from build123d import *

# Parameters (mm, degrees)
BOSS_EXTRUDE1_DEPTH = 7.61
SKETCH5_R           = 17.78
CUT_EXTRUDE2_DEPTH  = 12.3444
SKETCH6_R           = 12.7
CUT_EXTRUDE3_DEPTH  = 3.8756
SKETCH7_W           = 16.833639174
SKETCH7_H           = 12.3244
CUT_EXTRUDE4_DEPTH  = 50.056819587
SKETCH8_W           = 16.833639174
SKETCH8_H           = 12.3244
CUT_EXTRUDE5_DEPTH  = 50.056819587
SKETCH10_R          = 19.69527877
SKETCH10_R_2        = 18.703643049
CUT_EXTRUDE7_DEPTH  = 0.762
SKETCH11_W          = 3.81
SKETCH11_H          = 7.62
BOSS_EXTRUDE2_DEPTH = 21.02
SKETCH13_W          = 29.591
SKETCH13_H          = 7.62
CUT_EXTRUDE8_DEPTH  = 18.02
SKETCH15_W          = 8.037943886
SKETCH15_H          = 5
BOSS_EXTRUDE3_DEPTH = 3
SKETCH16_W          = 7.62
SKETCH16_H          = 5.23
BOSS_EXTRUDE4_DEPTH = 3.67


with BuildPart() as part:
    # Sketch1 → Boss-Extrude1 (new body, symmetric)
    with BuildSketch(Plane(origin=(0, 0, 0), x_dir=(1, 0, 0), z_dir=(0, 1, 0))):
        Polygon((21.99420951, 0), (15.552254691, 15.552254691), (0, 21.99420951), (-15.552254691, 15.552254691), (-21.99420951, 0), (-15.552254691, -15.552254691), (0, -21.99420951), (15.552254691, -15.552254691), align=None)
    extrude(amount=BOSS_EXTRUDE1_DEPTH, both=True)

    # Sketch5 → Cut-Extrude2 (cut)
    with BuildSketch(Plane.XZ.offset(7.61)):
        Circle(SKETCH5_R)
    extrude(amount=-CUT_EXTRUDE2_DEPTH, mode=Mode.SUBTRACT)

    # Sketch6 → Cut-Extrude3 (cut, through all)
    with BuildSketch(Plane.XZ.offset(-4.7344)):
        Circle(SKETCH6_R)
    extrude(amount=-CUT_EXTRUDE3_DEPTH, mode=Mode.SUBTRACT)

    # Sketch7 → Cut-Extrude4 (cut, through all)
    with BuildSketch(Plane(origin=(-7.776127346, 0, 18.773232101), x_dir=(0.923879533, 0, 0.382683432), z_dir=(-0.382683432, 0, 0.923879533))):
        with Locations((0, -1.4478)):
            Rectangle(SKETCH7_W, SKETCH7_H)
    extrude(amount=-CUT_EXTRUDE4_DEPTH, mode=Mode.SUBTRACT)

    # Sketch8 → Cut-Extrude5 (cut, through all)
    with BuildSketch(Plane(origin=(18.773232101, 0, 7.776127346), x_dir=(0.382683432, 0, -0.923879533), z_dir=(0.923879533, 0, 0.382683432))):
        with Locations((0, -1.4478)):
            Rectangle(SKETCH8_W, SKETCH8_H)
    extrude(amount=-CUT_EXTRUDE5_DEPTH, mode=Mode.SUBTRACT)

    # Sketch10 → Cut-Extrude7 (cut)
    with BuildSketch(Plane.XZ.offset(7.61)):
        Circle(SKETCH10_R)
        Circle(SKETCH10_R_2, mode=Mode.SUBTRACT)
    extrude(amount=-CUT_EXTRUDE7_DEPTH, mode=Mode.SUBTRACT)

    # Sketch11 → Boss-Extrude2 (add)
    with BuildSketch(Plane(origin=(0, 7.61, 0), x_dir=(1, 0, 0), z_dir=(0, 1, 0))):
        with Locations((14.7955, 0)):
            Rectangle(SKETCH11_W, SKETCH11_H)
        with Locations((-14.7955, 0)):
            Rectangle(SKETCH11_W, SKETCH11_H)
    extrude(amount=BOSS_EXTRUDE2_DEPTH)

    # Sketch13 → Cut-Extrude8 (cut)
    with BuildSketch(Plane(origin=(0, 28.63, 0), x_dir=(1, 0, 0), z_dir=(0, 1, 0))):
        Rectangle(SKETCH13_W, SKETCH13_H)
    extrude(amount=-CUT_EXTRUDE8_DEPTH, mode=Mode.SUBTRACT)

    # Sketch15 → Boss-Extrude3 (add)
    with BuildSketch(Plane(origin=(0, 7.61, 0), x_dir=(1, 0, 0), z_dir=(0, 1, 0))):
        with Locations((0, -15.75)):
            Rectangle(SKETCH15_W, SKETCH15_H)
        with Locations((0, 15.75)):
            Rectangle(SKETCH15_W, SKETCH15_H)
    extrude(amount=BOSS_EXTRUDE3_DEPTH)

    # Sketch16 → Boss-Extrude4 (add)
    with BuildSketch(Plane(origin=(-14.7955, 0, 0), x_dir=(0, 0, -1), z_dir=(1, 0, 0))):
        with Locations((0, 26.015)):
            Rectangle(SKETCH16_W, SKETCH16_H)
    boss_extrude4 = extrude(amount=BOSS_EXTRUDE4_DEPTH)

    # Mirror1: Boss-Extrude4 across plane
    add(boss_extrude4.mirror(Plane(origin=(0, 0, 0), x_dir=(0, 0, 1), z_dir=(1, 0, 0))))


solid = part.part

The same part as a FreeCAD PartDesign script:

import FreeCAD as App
import Part
import Sketcher
from FreeCAD import Vector
Q = App.Units.Quantity


def add_polygon(sketch, points):
    """Adds a closed chain of lines whose ends are joined by coincident constraints."""
    first, n = sketch.GeometryCount, len(points)
    for a, b in zip(points, points[1:] + points[:1]):
        sketch.addGeometry(Part.LineSegment(App.Vector(*a, 0), App.Vector(*b, 0)), False)
    for i in range(n):
        sketch.addConstraint(Sketcher.Constraint("Coincident", first + i, 2, first + (i + 1) % n, 1))

doc = App.newDocument("Part")
body = doc.addObject("PartDesign::Body", "Body")

sketch1 = body.newObject("Sketcher::SketchObject", "Sketch")
sketch1.AttachmentSupport = (doc.getObject("XZ_Plane"), [""])
sketch1.MapMode = "FlatFace"
add_polygon(sketch1, [(22, 0), (16, -16), (0, -22), (-16, -16), (-22, 0), (-16, 16), (0, 22), (16, 16)])
sketch1.addConstraint(Sketcher.Constraint("Symmetric", 0, 2, 4, 2, -1, 1))
sketch1.addConstraint(Sketcher.Constraint("Symmetric", 1, 2, 5, 2, -1, 1))
sketch1.addConstraint(Sketcher.Constraint("Symmetric", 2, 2, 6, 2, -1, 1))
sketch1.addConstraint(Sketcher.Constraint("Symmetric", 3, 2, 7, 2, -1, 1))
sketch1.addConstraint(Sketcher.Constraint("Symmetric", 0, 2, 2, 2, -2))
sketch1.addConstraint(Sketcher.Constraint("PointOnObject", 1, 2, -2))
sketch1.addConstraint(Sketcher.Constraint("PointOnObject", 3, 2, -1))
sketch1.addConstraint(Sketcher.Constraint("Perpendicular", 0, 2))
sketch1.addConstraint(Sketcher.Constraint("Equal", 0, 1))
sketch1.addConstraint(Sketcher.Constraint("Angle", 0, Q("-112.5 deg")))
sketch1.addConstraint(Sketcher.Constraint("Distance", 0, Q("16.833639 mm")))
pad1 = body.newObject("PartDesign::Pad", "Pad")
pad1.Profile = sketch1
pad1.Length = 15.22
pad1.Midplane = True

sketch2 = body.newObject("Sketcher::SketchObject", "Sketch001")
sketch2.AttachmentSupport = (doc.getObject("XZ_Plane"), [""])
sketch2.MapMode = "FlatFace"
sketch2.AttachmentOffset = App.Placement(Vector(0, 0, 7.61), App.Rotation())
sketch2.addGeometry(Part.Circle(Vector(0, 0, 0), Vector(0, 0, 1), 18), False)
sketch2.addConstraint(Sketcher.Constraint("Coincident", 0, 3, -1, 1))
sketch2.addConstraint(Sketcher.Constraint("Diameter", 0, Q("1.4 in")))
pocket1 = body.newObject("PartDesign::Pocket", "Pocket")
pocket1.Profile = sketch2
pocket1.Length = Q("0.486 in")

sketch3 = body.newObject("Sketcher::SketchObject", "Sketch002")
sketch3.AttachmentSupport = (doc.getObject("XZ_Plane"), [""])
sketch3.MapMode = "FlatFace"
sketch3.AttachmentOffset = App.Placement(Vector(0, 0, -4.7344), App.Rotation())
sketch3.addGeometry(Part.Circle(Vector(0, 0, 0), Vector(0, 0, 1), 13), False)
sketch3.addConstraint(Sketcher.Constraint("Coincident", 0, 3, -1, 1))
sketch3.addConstraint(Sketcher.Constraint("Diameter", 0, Q("1 in")))
pocket2 = body.newObject("PartDesign::Pocket", "Pocket001")
pocket2.Profile = sketch3
pocket2.Type = "ThroughAll"

sketch4 = body.newObject("Sketcher::SketchObject", "Sketch003")
sketch4.Placement = App.Placement(Vector(-7.776127, 0, 18.773232), App.Rotation(Vector(0.923879533, 0, 0.382683432), Vector(0, 1.000000001, 0), Vector(-0.382683432, 0, 0.923879533), "ZXY"))
add_polygon(sketch4, [(-8, 5), (-8, -8), (8, -8), (8, 5)])
sketch4.addConstraint(Sketcher.Constraint("Vertical", 0))
sketch4.addConstraint(Sketcher.Constraint("Horizontal", 1))
sketch4.addConstraint(Sketcher.Constraint("Vertical", 2))
sketch4.addConstraint(Sketcher.Constraint("Horizontal", 3))
sketch4.addConstraint(Sketcher.Constraint("DistanceY", 0, 2, 0, 1, Q("12.3244 mm")))
sketch4.addConstraint(Sketcher.Constraint("DistanceX", 1, 1, 1, 2, Q("16.833639 mm")))
sketch4.addConstraint(Sketcher.Constraint("DistanceY", 0, 2, -1, 1, Q("7.61 mm")))
sketch4.addConstraint(Sketcher.Constraint("DistanceX", 0, 2, -1, 1, Q("8.41682 mm")))
pocket3 = body.newObject("PartDesign::Pocket", "Pocket002")
pocket3.Profile = sketch4
pocket3.Type = "ThroughAll"

sketch5 = body.newObject("Sketcher::SketchObject", "Sketch004")
sketch5.Placement = App.Placement(Vector(18.773232, 0, 7.776127), App.Rotation(Vector(0.382683432, 0, -0.923879533), Vector(0, 1.000000001, 0), Vector(0.923879533, 0, 0.382683432), "ZXY"))
add_polygon(sketch5, [(-8, 5), (-8, -8), (8, -8), (8, 5)])
sketch5.addConstraint(Sketcher.Constraint("Vertical", 0))
sketch5.addConstraint(Sketcher.Constraint("Horizontal", 1))
sketch5.addConstraint(Sketcher.Constraint("Vertical", 2))
sketch5.addConstraint(Sketcher.Constraint("Horizontal", 3))
sketch5.addConstraint(Sketcher.Constraint("DistanceY", 0, 2, 0, 1, Q("12.3244 mm")))
sketch5.addConstraint(Sketcher.Constraint("DistanceX", 1, 1, 1, 2, Q("16.833639 mm")))
sketch5.addConstraint(Sketcher.Constraint("DistanceY", 0, 2, -1, 1, Q("7.61 mm")))
sketch5.addConstraint(Sketcher.Constraint("DistanceX", 0, 2, -1, 1, Q("8.41682 mm")))
pocket4 = body.newObject("PartDesign::Pocket", "Pocket003")
pocket4.Profile = sketch5
pocket4.Type = "ThroughAll"

sketch6 = body.newObject("Sketcher::SketchObject", "Sketch005")
sketch6.AttachmentSupport = (doc.getObject("XZ_Plane"), [""])
sketch6.MapMode = "FlatFace"
sketch6.AttachmentOffset = App.Placement(Vector(0, 0, 7.61), App.Rotation())
sketch6.addGeometry(Part.Circle(Vector(0, 0, 0), Vector(0, 0, 1), 20), False)
sketch6.addGeometry(Part.Circle(Vector(0, 0, 0), Vector(0, 0, 1), 19), False)
sketch6.addConstraint(Sketcher.Constraint("Coincident", 0, 3, -1, 1))
sketch6.addConstraint(Sketcher.Constraint("Coincident", 1, 3, -1, 1))
sketch6.addConstraint(Sketcher.Constraint("Diameter", 0, Q("39.390558 mm")))
sketch6.addConstraint(Sketcher.Constraint("Diameter", 1, Q("37.407286 mm")))
pocket5 = body.newObject("PartDesign::Pocket", "Pocket004")
pocket5.Profile = sketch6
pocket5.Length = Q("0.03 in")

sketch7 = body.newObject("Sketcher::SketchObject", "Sketch006")
sketch7.AttachmentSupport = (doc.getObject("XZ_Plane"), [""])
sketch7.MapMode = "FlatFace"
sketch7.AttachmentOffset = App.Placement(Vector(0, 0, -7.61), App.Rotation())
add_polygon(sketch7, [(12.9, -3.8), (12.9, 3.8), (16.7, 3.8), (16.7, -3.8)])
add_polygon(sketch7, [(-16.7, -3.8), (-16.7, 3.8), (-12.9, 3.8), (-12.9, -3.8)])
sketch7.addConstraint(Sketcher.Constraint("Vertical", 0))
sketch7.addConstraint(Sketcher.Constraint("Horizontal", 1))
sketch7.addConstraint(Sketcher.Constraint("Vertical", 2))
sketch7.addConstraint(Sketcher.Constraint("Horizontal", 3))
sketch7.addConstraint(Sketcher.Constraint("Vertical", 4))
sketch7.addConstraint(Sketcher.Constraint("Horizontal", 5))
sketch7.addConstraint(Sketcher.Constraint("Vertical", 6))
sketch7.addConstraint(Sketcher.Constraint("Horizontal", 7))
sketch7.addConstraint(Sketcher.Constraint("Symmetric", 2, 2, 4, 2, -1, 1))
sketch7.addConstraint(Sketcher.Constraint("Symmetric", 0, 2, 6, 2, -1, 1))
sketch7.addConstraint(Sketcher.Constraint("Horizontal", 1, 2, 4, 2))
sketch7.addConstraint(Sketcher.Constraint("DistanceY", 0, 1, 0, 2, Q("0.3 in")))
sketch7.addConstraint(Sketcher.Constraint("DistanceX", 1, 1, 1, 2, Q("0.15 in")))
sketch7.addConstraint(Sketcher.Constraint("DistanceX", 4, 2, 0, 2, Q("1.165 in")))
pad2 = body.newObject("PartDesign::Pad", "Pad001")
pad2.Profile = sketch7
pad2.Length = 21.02
pad2.Reversed = True

sketch8 = body.newObject("Sketcher::SketchObject", "Sketch007")
sketch8.AttachmentSupport = (doc.getObject("XZ_Plane"), [""])
sketch8.MapMode = "FlatFace"
sketch8.AttachmentOffset = App.Placement(Vector(0, 0, -28.63), App.Rotation())
add_polygon(sketch8, [(-15, -4), (-15, 4), (15, 4), (15, -4)])
sketch8.addConstraint(Sketcher.Constraint("Vertical", 0))
sketch8.addConstraint(Sketcher.Constraint("Horizontal", 1))
sketch8.addConstraint(Sketcher.Constraint("Vertical", 2))
sketch8.addConstraint(Sketcher.Constraint("Horizontal", 3))
sketch8.addConstraint(Sketcher.Constraint("Symmetric", 0, 2, 2, 2, -1, 1))
sketch8.addConstraint(Sketcher.Constraint("DistanceY", 0, 1, 0, 2, Q("0.3 in")))
sketch8.addConstraint(Sketcher.Constraint("DistanceX", 1, 1, 1, 2, Q("1.165 in")))
pocket6 = body.newObject("PartDesign::Pocket", "Pocket005")
pocket6.Profile = sketch8
pocket6.Length = 18.02
pocket6.Reversed = True

sketch9 = body.newObject("Sketcher::SketchObject", "Sketch008")
sketch9.AttachmentSupport = (doc.getObject("XZ_Plane"), [""])
sketch9.MapMode = "FlatFace"
sketch9.AttachmentOffset = App.Placement(Vector(0, 0, -7.61), App.Rotation())
add_polygon(sketch9, [(-4, 13), (-4, 18), (4, 18), (4, 13)])
add_polygon(sketch9, [(-4, -18), (-4, -13), (4, -13), (4, -18)])
sketch9.addConstraint(Sketcher.Constraint("Vertical", 0))
sketch9.addConstraint(Sketcher.Constraint("Horizontal", 1))
sketch9.addConstraint(Sketcher.Constraint("Vertical", 2))
sketch9.addConstraint(Sketcher.Constraint("Horizontal", 3))
sketch9.addConstraint(Sketcher.Constraint("Vertical", 4))
sketch9.addConstraint(Sketcher.Constraint("Horizontal", 5))
sketch9.addConstraint(Sketcher.Constraint("Vertical", 6))
sketch9.addConstraint(Sketcher.Constraint("Horizontal", 7))
sketch9.addConstraint(Sketcher.Constraint("Symmetric", 2, 2, 4, 2, -1, 1))
sketch9.addConstraint(Sketcher.Constraint("Symmetric", 0, 2, 6, 2, -1, 1))
sketch9.addConstraint(Sketcher.Constraint("Vertical", 3, 2, 4, 2))
sketch9.addConstraint(Sketcher.Constraint("DistanceY", 0, 1, 0, 2, Q("5 mm")))
sketch9.addConstraint(Sketcher.Constraint("DistanceY", -1, 1, 0, 2, Q("18.25 mm")))
sketch9.addConstraint(Sketcher.Constraint("DistanceX", 1, 1, 1, 2, Q("8.037944 mm")))
pad3 = body.newObject("PartDesign::Pad", "Pad002")
pad3.Profile = sketch9
pad3.Length = 3
pad3.Reversed = True

sketch10 = body.newObject("Sketcher::SketchObject", "Sketch009")
sketch10.AttachmentSupport = (doc.getObject("YZ_Plane"), [""])
sketch10.MapMode = "FlatFace"
sketch10.AttachmentOffset = App.Placement(Vector(0, 0, -0.5825 * 25.4), App.Rotation())
add_polygon(sketch10, [(29, 4), (23, 4), (23, -4), (29, -4)])
sketch10.addConstraint(Sketcher.Constraint("Horizontal", 0))
sketch10.addConstraint(Sketcher.Constraint("Vertical", 1))
sketch10.addConstraint(Sketcher.Constraint("Horizontal", 2))
sketch10.addConstraint(Sketcher.Constraint("Vertical", 3))
sketch10.addConstraint(Sketcher.Constraint("DistanceY", 1, 2, 1, 1, Q("0.3 in")))
sketch10.addConstraint(Sketcher.Constraint("DistanceY", -1, 1, 0, 2, Q("0.15 in")))
sketch10.addConstraint(Sketcher.Constraint("DistanceX", 0, 2, 0, 1, Q("5.23 mm")))
sketch10.addConstraint(Sketcher.Constraint("DistanceX", -1, 1, 0, 2, Q("23.4 mm")))
pad4 = body.newObject("PartDesign::Pad", "Pad003")
pad4.Profile = sketch10
pad4.Length = 3.67
doc.recompute()

mirrored = body.newObject("PartDesign::Mirrored", "Mirrored")
mirrored.Originals = [pad4]
mirrored.MirrorPlane = (doc.getObject("YZ_Plane"), [""])
body.Tip = mirrored

doc.recompute()
